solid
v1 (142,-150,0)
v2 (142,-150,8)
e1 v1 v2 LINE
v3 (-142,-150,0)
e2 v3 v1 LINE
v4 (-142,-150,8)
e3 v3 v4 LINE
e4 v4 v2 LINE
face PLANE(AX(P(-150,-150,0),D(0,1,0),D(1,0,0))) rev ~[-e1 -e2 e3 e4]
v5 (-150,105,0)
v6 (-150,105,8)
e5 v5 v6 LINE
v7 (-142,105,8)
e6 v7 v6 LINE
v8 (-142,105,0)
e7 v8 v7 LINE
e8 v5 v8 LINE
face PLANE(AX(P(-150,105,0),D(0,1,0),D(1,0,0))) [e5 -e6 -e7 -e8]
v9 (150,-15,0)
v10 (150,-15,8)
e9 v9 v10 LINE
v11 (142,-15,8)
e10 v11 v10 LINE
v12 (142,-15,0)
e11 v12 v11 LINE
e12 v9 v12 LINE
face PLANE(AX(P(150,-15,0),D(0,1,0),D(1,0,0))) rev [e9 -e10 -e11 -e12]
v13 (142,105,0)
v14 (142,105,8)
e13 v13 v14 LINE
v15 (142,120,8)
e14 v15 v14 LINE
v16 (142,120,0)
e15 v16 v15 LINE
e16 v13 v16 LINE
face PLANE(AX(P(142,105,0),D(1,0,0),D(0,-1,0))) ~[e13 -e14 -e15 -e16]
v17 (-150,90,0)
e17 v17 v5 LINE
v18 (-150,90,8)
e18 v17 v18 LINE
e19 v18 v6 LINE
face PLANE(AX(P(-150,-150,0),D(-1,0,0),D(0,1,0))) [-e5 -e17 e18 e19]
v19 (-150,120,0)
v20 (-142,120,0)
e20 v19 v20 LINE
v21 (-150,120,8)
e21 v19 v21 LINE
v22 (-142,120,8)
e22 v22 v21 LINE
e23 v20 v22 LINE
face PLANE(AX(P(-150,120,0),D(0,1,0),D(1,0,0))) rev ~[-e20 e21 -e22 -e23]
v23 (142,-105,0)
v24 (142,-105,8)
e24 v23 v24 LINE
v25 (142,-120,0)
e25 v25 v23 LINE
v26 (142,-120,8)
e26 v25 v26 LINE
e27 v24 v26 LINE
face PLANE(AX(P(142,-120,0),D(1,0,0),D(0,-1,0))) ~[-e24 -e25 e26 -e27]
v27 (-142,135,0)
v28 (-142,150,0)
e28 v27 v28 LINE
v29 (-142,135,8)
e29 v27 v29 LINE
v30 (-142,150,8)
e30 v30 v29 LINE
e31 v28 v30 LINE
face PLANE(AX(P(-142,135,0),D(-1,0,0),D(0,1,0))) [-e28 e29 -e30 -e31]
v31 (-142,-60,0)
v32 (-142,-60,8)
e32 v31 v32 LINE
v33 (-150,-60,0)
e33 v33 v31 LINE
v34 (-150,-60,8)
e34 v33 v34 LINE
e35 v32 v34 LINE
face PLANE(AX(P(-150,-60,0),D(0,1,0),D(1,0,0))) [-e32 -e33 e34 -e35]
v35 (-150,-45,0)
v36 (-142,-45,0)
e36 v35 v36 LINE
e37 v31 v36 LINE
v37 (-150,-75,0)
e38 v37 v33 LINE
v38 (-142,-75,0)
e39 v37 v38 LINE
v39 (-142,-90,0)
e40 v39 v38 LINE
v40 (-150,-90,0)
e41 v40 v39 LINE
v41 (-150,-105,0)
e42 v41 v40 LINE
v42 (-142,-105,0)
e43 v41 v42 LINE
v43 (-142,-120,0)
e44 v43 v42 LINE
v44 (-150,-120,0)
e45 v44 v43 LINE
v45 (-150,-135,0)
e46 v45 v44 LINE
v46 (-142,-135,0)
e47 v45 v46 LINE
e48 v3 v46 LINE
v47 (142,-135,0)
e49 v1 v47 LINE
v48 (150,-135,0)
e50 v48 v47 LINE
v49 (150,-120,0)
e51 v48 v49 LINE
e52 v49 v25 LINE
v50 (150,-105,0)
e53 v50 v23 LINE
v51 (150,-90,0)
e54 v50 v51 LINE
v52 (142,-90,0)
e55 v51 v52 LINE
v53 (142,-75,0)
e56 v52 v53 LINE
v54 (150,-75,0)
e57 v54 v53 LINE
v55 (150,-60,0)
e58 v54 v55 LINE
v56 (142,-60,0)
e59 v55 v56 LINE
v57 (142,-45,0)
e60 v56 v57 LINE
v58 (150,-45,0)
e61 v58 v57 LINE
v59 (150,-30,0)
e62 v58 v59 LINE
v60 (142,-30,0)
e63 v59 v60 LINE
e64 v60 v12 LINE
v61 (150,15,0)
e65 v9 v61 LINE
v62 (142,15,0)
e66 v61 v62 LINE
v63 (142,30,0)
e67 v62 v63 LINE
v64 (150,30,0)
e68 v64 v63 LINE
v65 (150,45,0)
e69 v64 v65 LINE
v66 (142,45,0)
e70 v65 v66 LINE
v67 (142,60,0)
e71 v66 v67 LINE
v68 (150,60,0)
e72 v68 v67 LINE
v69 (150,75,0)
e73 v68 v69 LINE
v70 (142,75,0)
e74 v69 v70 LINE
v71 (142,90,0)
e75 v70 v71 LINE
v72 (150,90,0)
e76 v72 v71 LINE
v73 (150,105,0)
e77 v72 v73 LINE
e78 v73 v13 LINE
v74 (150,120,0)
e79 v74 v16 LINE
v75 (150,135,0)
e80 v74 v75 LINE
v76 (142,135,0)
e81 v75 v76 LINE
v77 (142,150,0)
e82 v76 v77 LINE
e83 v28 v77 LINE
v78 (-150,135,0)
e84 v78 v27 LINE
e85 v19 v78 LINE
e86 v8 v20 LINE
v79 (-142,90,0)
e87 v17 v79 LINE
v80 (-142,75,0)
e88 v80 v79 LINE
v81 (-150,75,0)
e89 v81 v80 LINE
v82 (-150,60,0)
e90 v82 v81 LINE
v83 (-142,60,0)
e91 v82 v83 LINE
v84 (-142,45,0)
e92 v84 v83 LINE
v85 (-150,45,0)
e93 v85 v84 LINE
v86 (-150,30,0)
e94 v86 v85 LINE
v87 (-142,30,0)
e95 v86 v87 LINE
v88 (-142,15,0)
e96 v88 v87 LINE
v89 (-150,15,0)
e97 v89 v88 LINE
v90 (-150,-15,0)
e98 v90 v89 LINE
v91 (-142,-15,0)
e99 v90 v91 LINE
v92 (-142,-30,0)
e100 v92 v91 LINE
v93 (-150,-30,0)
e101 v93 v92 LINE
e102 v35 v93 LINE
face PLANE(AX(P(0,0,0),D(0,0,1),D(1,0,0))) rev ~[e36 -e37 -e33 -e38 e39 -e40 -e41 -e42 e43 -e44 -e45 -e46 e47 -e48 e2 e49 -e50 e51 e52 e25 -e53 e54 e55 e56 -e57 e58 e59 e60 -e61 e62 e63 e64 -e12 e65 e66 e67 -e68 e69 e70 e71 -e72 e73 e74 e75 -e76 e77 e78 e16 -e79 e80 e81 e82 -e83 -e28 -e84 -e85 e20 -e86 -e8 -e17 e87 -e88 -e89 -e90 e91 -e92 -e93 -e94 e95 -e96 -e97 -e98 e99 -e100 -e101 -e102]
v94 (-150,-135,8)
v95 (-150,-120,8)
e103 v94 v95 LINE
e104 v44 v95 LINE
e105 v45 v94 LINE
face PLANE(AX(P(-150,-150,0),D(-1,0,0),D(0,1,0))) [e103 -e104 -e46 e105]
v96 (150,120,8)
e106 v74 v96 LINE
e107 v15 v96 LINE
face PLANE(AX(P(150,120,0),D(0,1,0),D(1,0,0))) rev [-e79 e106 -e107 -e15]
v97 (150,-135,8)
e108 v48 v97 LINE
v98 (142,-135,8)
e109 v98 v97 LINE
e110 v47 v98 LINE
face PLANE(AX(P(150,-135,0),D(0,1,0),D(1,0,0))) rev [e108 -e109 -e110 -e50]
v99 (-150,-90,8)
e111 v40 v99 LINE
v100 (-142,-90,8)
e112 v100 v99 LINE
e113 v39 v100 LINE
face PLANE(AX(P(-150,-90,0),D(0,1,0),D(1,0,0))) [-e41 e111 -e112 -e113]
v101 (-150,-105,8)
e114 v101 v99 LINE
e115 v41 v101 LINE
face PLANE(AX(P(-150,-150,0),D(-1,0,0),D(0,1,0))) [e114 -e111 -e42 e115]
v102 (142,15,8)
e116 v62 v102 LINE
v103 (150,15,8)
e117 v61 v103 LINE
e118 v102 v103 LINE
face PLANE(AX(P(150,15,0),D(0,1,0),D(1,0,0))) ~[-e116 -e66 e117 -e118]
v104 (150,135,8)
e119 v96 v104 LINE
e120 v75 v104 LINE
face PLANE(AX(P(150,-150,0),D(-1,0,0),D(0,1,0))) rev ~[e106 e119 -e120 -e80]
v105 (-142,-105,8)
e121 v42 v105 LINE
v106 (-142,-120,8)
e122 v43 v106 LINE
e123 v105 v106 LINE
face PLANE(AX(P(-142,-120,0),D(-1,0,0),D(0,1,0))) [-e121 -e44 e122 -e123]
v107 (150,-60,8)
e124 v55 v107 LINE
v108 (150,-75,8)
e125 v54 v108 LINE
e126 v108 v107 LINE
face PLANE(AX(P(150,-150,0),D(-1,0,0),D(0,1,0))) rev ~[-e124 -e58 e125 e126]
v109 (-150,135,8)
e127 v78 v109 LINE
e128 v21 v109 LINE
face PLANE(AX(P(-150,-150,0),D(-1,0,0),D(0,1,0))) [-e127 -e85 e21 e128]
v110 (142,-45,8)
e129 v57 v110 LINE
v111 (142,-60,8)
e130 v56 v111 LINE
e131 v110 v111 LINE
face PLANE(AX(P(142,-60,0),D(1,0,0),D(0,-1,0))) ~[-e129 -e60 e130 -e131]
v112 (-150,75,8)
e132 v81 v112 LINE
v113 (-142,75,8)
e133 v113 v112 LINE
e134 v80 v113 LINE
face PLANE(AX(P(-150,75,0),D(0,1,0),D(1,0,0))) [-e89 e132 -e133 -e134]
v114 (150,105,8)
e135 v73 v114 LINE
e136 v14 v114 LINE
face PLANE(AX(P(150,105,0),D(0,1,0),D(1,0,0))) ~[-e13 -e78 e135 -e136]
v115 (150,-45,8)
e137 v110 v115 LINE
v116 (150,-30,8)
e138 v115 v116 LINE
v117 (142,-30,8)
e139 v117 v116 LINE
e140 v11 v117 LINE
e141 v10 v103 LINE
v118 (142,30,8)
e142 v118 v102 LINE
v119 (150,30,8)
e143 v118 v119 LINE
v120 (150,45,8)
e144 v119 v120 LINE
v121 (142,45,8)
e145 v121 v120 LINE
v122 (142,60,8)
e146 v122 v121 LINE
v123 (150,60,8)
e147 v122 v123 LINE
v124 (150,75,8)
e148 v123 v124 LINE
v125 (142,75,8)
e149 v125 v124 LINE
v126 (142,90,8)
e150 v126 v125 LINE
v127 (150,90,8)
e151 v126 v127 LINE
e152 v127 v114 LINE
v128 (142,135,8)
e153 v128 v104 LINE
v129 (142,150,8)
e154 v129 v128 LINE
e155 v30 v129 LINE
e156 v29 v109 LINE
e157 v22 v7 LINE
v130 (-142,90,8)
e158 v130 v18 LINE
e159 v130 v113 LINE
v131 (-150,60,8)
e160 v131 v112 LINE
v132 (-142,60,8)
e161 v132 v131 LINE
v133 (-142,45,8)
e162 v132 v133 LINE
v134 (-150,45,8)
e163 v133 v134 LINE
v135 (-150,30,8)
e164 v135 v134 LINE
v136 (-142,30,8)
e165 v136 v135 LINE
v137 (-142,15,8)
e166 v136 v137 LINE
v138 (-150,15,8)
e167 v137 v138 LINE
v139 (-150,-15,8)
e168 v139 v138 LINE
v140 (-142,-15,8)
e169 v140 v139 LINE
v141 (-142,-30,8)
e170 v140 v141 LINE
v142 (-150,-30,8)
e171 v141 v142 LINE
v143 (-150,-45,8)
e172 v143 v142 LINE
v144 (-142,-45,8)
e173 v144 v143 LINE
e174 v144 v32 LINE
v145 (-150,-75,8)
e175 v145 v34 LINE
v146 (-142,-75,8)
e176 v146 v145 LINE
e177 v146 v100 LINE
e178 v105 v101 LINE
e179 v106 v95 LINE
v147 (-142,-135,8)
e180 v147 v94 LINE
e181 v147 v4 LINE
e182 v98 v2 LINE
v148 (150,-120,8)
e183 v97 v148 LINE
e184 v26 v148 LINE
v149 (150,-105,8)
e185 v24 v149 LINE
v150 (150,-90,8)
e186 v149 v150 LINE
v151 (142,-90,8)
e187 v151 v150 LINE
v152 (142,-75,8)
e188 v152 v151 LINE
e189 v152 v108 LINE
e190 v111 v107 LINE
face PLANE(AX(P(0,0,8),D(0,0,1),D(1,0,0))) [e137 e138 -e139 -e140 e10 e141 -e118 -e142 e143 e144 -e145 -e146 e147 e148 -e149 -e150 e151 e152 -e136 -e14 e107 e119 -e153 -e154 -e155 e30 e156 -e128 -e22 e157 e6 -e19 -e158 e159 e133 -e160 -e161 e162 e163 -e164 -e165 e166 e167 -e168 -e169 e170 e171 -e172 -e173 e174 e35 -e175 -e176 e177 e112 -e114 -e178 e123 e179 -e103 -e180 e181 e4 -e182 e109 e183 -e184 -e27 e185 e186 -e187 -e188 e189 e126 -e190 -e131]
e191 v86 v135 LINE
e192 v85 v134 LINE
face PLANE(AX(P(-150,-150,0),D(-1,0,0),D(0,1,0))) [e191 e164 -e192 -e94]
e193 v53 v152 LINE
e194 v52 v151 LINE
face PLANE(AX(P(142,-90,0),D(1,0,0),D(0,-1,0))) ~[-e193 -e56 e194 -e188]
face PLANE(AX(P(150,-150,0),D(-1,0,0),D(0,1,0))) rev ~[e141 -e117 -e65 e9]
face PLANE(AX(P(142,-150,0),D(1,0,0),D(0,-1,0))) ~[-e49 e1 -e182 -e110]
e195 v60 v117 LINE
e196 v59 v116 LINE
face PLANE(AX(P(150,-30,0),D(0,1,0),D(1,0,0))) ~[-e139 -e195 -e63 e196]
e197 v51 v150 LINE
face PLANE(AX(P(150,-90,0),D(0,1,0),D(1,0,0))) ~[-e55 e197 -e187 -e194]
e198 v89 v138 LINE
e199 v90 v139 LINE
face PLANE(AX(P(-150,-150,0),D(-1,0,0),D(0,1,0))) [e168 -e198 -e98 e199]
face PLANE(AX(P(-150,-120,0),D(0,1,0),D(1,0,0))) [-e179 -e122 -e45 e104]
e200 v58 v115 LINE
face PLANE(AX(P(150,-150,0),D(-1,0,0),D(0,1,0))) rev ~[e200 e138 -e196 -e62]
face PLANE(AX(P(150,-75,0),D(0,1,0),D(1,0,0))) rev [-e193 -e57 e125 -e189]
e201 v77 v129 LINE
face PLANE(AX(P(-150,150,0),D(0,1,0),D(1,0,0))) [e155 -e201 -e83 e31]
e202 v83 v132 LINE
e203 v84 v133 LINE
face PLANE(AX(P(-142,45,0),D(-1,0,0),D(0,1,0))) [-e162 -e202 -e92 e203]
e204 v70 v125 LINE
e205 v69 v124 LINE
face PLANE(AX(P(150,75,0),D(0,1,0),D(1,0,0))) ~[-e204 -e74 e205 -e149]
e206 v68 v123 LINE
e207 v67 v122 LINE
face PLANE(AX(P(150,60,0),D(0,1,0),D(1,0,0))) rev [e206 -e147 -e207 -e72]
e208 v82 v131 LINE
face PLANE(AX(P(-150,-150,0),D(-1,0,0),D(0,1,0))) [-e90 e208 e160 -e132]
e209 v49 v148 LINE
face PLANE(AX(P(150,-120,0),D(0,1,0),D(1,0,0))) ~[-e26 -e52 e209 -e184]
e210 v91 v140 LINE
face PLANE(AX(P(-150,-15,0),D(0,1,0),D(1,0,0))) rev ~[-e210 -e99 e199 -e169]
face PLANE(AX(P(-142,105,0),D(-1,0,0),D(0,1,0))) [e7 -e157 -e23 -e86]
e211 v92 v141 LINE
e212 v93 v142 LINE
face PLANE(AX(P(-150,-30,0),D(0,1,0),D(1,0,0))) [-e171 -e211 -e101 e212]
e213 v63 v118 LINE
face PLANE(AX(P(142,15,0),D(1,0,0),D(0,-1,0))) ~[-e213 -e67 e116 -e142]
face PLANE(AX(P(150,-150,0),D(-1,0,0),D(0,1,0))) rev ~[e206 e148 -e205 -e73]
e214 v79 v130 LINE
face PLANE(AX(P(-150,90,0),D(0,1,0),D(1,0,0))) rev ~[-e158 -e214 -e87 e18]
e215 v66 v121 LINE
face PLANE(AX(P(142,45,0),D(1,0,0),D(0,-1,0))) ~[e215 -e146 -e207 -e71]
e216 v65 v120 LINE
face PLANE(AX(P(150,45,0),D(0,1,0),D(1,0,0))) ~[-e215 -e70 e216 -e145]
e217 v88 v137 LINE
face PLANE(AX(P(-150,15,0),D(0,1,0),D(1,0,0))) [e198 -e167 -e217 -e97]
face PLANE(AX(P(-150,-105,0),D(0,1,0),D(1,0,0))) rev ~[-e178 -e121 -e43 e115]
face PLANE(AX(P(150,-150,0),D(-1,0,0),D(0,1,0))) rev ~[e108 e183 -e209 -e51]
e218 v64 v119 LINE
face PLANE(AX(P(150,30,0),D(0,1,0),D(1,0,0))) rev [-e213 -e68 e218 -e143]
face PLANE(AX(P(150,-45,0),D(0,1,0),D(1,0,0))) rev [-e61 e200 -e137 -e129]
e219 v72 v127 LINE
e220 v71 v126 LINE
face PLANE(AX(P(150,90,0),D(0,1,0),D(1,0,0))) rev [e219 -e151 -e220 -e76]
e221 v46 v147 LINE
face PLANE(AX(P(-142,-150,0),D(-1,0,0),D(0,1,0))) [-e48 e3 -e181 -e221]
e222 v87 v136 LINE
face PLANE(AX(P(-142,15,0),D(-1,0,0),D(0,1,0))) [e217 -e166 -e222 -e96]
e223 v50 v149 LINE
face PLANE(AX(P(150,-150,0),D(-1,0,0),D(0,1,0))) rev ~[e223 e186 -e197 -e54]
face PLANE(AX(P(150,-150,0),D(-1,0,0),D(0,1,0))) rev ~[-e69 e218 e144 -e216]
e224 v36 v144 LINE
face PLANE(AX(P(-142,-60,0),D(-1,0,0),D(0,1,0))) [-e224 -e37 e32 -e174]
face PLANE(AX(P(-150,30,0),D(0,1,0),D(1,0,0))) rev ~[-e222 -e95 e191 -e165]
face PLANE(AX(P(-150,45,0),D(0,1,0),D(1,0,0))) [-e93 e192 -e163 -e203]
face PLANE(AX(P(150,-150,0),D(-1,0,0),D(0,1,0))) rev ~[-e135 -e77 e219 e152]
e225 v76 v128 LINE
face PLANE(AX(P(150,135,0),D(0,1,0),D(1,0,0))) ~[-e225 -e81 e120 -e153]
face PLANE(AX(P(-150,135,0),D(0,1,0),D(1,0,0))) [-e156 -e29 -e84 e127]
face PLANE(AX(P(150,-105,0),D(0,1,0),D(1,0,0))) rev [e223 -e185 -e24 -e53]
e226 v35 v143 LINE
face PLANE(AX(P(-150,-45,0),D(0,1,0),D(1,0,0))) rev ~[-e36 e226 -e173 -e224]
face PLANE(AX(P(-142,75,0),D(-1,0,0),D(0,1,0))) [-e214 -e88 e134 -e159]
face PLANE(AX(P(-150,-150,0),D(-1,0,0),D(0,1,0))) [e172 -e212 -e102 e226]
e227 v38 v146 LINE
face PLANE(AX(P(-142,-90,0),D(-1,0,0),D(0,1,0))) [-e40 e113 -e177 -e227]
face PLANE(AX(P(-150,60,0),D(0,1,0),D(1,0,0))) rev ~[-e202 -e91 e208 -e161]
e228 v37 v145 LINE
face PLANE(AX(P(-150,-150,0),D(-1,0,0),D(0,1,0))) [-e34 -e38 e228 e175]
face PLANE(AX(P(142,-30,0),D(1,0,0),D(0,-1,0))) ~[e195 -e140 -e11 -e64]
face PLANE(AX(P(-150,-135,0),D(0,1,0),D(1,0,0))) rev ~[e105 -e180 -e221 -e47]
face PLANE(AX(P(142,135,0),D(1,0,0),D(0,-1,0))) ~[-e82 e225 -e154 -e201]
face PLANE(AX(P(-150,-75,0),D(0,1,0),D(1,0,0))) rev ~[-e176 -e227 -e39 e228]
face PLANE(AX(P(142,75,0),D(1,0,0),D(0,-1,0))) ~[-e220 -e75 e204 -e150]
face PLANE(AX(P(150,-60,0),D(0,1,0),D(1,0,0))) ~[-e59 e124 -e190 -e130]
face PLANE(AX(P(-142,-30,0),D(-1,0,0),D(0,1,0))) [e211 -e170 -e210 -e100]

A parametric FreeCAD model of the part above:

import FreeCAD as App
import Part
import Sketcher
Q = App.Units.Quantity


def add_polygon(sketch, points):
    """Adds a closed chain of lines whose ends are joined by coincident constraints."""
    first, n = sketch.GeometryCount, len(points)
    for a, b in zip(points, points[1:] + points[:1]):
        sketch.addGeometry(Part.LineSegment(App.Vector(*a, 0), App.Vector(*b, 0)), False)
    for i in range(n):
        sketch.addConstraint(Sketcher.Constraint("Coincident", first + i, 2, first + (i + 1) % n, 1))

doc = App.newDocument("Part")
body = doc.addObject("PartDesign::Body", "Body")

# Sketch on XY plane
sketch1 = body.newObject("Sketcher::SketchObject", "Sketch")
sketch1.AttachmentSupport = (doc.getObject("XY_Plane"), [""])
sketch1.MapMode = "FlatFace"
add_polygon(sketch1, [(-150, 150), (-150, -150), (150, -150), (150, 150)])  # lines 0-3
sketch1.addConstraint([
    Sketcher.Constraint("Vertical", 0),
    Sketcher.Constraint("Horizontal", 1),
    Sketcher.Constraint("Vertical", 2),
    Sketcher.Constraint("Horizontal", 3),
    Sketcher.Constraint("Symmetric", 0, 2, 2, 2, -1, 1),
    Sketcher.Constraint("Equal", 3, 0),
    Sketcher.Constraint("DistanceX", 1, 1, 1, 2, Q("300 mm")),
])
pad1 = body.newObject("PartDesign::Pad", "Pad")
pad1.Profile = sketch1
pad1.Length = 8

# Sketch on XY plane
sketch2 = body.newObject("Sketcher::SketchObject", "Sketch001")
sketch2.AttachmentSupport = (doc.getObject("XY_Plane"), [""])
sketch2.MapMode = "FlatFace"
add_polygon(sketch2, [(-150, -15), (-150, -30), (-142, -30), (-142, -15)])  # lines 0-3
add_polygon(sketch2, [(-150, -45), (-150, -60), (-142, -60), (-142, -45)])  # lines 4-7
add_polygon(sketch2, [(-150, -75), (-150, -90), (-142, -90), (-142, -75)])  # lines 8-11
add_polygon(sketch2, [(-150, -105), (-150, -120), (-142, -120), (-142, -105)])  # lines 12-15
add_polygon(sketch2, [(-150, -135), (-150, -150), (-142, -150), (-142, -135)])  # lines 16-19
add_polygon(sketch2, [(-150, 60), (-150, 45), (-142, 45), (-142, 60)])  # lines 20-23
add_polygon(sketch2, [(-150, 150), (-150, 135), (-142, 135), (-142, 150)])  # lines 24-27
add_polygon(sketch2, [(-150, 120), (-150, 105), (-142, 105), (-142, 120)])  # lines 28-31
add_polygon(sketch2, [(-150, 90), (-150, 75), (-142, 75), (-142, 90)])  # lines 32-35
add_polygon(sketch2, [(-150, 30), (-150, 15), (-142, 15), (-142, 30)])  # lines 36-39
sketch2.addConstraint([
    Sketcher.Constraint("Vertical", 0),
    Sketcher.Constraint("Horizontal", 1),
    Sketcher.Constraint("Vertical", 2),
    Sketcher.Constraint("Horizontal", 3),
    Sketcher.Constraint("Vertical", 4),
    Sketcher.Constraint("Horizontal", 5),
    Sketcher.Constraint("Vertical", 6),
    Sketcher.Constraint("Horizontal", 7),
    Sketcher.Constraint("Vertical", 8),
    Sketcher.Constraint("Horizontal", 9),
    Sketcher.Constraint("Vertical", 10),
    Sketcher.Constraint("Horizontal", 11),
    Sketcher.Constraint("Vertical", 12),
    Sketcher.Constraint("Horizontal", 13),
    Sketcher.Constraint("Vertical", 14),
    Sketcher.Constraint("Horizontal", 15),
    Sketcher.Constraint("Vertical", 16),
    Sketcher.Constraint("Horizontal", 17),
    Sketcher.Constraint("Vertical", 18),
    Sketcher.Constraint("Horizontal", 19),
    Sketcher.Constraint("Vertical", 20),
    Sketcher.Constraint("Horizontal", 21),
    Sketcher.Constraint("Vertical", 22),
    Sketcher.Constraint("Horizontal", 23),
    Sketcher.Constraint("Vertical", 24),
    Sketcher.Constraint("Horizontal", 25),
    Sketcher.Constraint("Vertical", 26),
    Sketcher.Constraint("Horizontal", 27),
    Sketcher.Constraint("Vertical", 28),
    Sketcher.Constraint("Horizontal", 29),
    Sketcher.Constraint("Vertical", 30),
    Sketcher.Constraint("Horizontal", 31),
    Sketcher.Constraint("Vertical", 32),
    Sketcher.Constraint("Horizontal", 33),
    Sketcher.Constraint("Vertical", 34),
    Sketcher.Constraint("Horizontal", 35),
    Sketcher.Constraint("Vertical", 36),
    Sketcher.Constraint("Horizontal", 37),
    Sketcher.Constraint("Vertical", 38),
    Sketcher.Constraint("Horizontal", 39),
    Sketcher.Constraint("Symmetric", 7, 2, 20, 2, -1),
    Sketcher.Constraint("Symmetric", 5, 2, 22, 2, -1),
    Sketcher.Constraint("Symmetric", 19, 2, 24, 2, -1),
    Sketcher.Constraint("Symmetric", 17, 2, 26, 2, -1),
    Sketcher.Constraint("Symmetric", 15, 2, 28, 2, -1),
    Sketcher.Constraint("Symmetric", 13, 2, 30, 2, -1),
    Sketcher.Constraint("Symmetric", 11, 2, 32, 2, -1),
    Sketcher.Constraint("Symmetric", 9, 2, 34, 2, -1),
    Sketcher.Constraint("Symmetric", 3, 2, 36, 2, -1),
    Sketcher.Constraint("Symmetric", 1, 2, 38, 2, -1),
    Sketcher.Constraint("Vertical", 3, 2, 4, 2),
    Sketcher.Constraint("Vertical", 2, 2, 5, 2),
    Sketcher.Constraint("Vertical", 7, 2, 8, 2),
    Sketcher.Constraint("Vertical", 6, 2, 9, 2),
    Sketcher.Constraint("Vertical", 11, 2, 12, 2),
    Sketcher.Constraint("Vertical", 10, 2, 13, 2),
    Sketcher.Constraint("Vertical", 15, 2, 16, 2),
    Sketcher.Constraint("Vertical", 14, 2, 17, 2),
    Sketcher.Constraint("Equal", 2, 4),
    Sketcher.Constraint("Equal", 6, 8),
    Sketcher.Constraint("Equal", 10, 12),
    Sketcher.Constraint("Equal", 14, 16),
    Sketcher.Constraint("DistanceX", 1, 1, 1, 2, Q("8 mm")),
    Sketcher.Constraint("DistanceY", 0, 2, 0, 1, Q("15 mm")),
    Sketcher.Constraint("DistanceX", 0, 2, -1, 1, Q("150 mm")),
    Sketcher.Constraint("DistanceY", 0, 2, -1, 1, Q("30 mm")),
    Sketcher.Constraint("DistanceY", 4, 2, -1, 1, Q("60 mm")),
    Sketcher.Constraint("DistanceY", 8, 2, -1, 1, Q("90 mm")),
    Sketcher.Constraint("DistanceY", 12, 2, -1, 1, Q("120 mm")),
    Sketcher.Constraint("DistanceY", 16, 2, -1, 1, Q("150 mm")),
])
pocket1 = body.newObject("PartDesign::Pocket", "Pocket")
pocket1.Profile = sketch2
pocket1.Type = "ThroughAll"
pocket1.Reversed = True
doc.recompute()

mirrored = body.newObject("PartDesign::Mirrored", "Mirrored")
mirrored.Originals = [pocket1]
mirrored.MirrorPlane = (doc.getObject("YZ_Plane"), [""])
body.Tip = mirrored

doc.recompute()
